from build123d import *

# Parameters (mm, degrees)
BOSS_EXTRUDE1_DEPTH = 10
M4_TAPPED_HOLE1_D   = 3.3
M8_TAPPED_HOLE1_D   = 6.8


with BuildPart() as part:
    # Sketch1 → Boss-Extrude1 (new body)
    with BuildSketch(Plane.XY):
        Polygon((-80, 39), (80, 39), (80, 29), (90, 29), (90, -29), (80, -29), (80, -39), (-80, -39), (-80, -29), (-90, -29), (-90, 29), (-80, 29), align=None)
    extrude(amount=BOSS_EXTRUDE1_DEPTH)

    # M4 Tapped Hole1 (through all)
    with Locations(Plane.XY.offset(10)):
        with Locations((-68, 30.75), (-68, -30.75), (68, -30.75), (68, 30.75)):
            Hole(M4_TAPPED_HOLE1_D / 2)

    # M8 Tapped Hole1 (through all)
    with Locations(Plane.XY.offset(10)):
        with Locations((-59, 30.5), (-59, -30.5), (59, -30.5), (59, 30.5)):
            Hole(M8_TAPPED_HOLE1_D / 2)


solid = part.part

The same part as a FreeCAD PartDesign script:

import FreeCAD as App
import Part
import Sketcher

V = App.Vector


def add_polygon(sketch, points):
    """Adds a closed chain of lines whose ends are joined by coincident constraints."""
    first, n = sketch.GeometryCount, len(points)
    for a, b in zip(points, points[1:] + points[:1]):
        sketch.addGeometry(Part.LineSegment(App.Vector(*a, 0), App.Vector(*b, 0)), False)
    for i in range(n):
        sketch.addConstraint(Sketcher.Constraint("Coincident", first + i, 2, first + (i + 1) % n, 1))

doc = App.newDocument("Part")
body = doc.addObject("PartDesign::Body", "Body")

# Sketch on XY plane
sketch1 = body.newObject("Sketcher::SketchObject", "Sketch")
sketch1.AttachmentSupport = (doc.getObject("XY_Plane"), [""])
sketch1.MapMode = "FlatFace"
add_polygon(sketch1, [(80, 39), (-80, 39), (-80, 29), (-90, 29), (-90, -29), (-80, -29), (-80, -39), (80, -39), (80, -29), (90, -29), (90, 29), (80, 29)])  # lines 0-11
sketch1.addConstraint([
    Sketcher.Constraint("Horizontal", 0),
    Sketcher.Constraint("Vertical", 1),
    Sketcher.Constraint("Horizontal", 2),
    Sketcher.Constraint("Vertical", 3),
    Sketcher.Constraint("Horizontal", 4),
    Sketcher.Constraint("Vertical", 5),
    Sketcher.Constraint("Horizontal", 6),
    Sketcher.Constraint("Vertical", 7),
    Sketcher.Constraint("Horizontal", 8),
    Sketcher.Constraint("Vertical", 9),
    Sketcher.Constraint("Horizontal", 10),
    Sketcher.Constraint("Vertical", 11),
    Sketcher.Constraint("Symmetric", 0, 2, 6, 2, -1, 1),
    Sketcher.Constraint("Symmetric", 2, 2, 8, 2, -1, 1),
    Sketcher.Constraint("Symmetric", 4, 2, 10, 2, -1, 1),
    Sketcher.Constraint("Symmetric", 4, 2, 7, 2, -2),
    Sketcher.Constraint("Equal", 10, 1),
    Sketcher.Constraint("DistanceX", 0, 2, 0, 1, 160.0),
    Sketcher.Constraint("DistanceX", 2, 2, 2, 1, 10.0),
    Sketcher.Constraint("DistanceY", 3, 2, 3, 1, 58.0),
])
pad1 = body.newObject("PartDesign::Pad", "Pad")
pad1.Profile = sketch1
pad1.Length = 10

# Sketch on XY plane
sketch2 = body.newObject("Sketcher::SketchObject", "Sketch001")
sketch2.AttachmentSupport = (doc.getObject("XY_Plane"), [""])
sketch2.MapMode = "FlatFace"
sketch2.AttachmentOffset = App.Placement(V(0, 0, 10), App.Rotation())
sketch2.addGeometry([
    Part.Circle(V(-68, 30.8, 0), V(0, 0, 1), 1.6),
    Part.Circle(V(-68, -30.8, 0), V(0, 0, 1), 1.6),
    Part.Circle(V(68, -30.8, 0), V(0, 0, 1), 1.6),
    Part.Circle(V(68, 30.8, 0), V(0, 0, 1), 1.6),
], False)
sketch2.addConstraint([
    Sketcher.Constraint("Equal", 0, 1),
    Sketcher.Constraint("Equal", 1, 2),
    Sketcher.Constraint("Equal", 2, 3),
    Sketcher.Constraint("Symmetric", 0, 3, 2, 3, -1, 1),
    Sketcher.Constraint("Symmetric", 1, 3, 3, 3, -1, 1),
    Sketcher.Constraint("Symmetric", 1, 3, 2, 3, -2),
    Sketcher.Constraint("Diameter", 0, 3.3),
    Sketcher.Constraint("DistanceX", 0, 3, -1, 1, 68.0),
    Sketcher.Constraint("DistanceY", 1, 3, 0, 3, 61.5),
])
doc.recompute()
hole = body.newObject("PartDesign::Hole", "Hole")
hole.Profile = sketch2
hole.ThreadType = "None"
hole.Diameter = 3.3
hole.DepthType = "ThroughAll"

# Sketch on XY plane
sketch3 = body.newObject("Sketcher::SketchObject", "Sketch002")
sketch3.AttachmentSupport = (doc.getObject("XY_Plane"), [""])
sketch3.MapMode = "FlatFace"
sketch3.AttachmentOffset = App.Placement(V(0, 0, 10), App.Rotation())
sketch3.addGeometry([
    Part.Circle(V(-59, 30.5, 0), V(0, 0, 1), 3.4),
    Part.Circle(V(-59, -30.5, 0), V(0, 0, 1), 3.4),
    Part.Circle(V(59, -30.5, 0), V(0, 0, 1), 3.4),
    Part.Circle(V(59, 30.5, 0), V(0, 0, 1), 3.4),
], False)
sketch3.addConstraint([
    Sketcher.Constraint("Equal", 0, 1),
    Sketcher.Constraint("Equal", 1, 2),
    Sketcher.Constraint("Equal", 2, 3),
    Sketcher.Constraint("Symmetric", 0, 3, 2, 3, -1, 1),
    Sketcher.Constraint("Symmetric", 1, 3, 3, 3, -1, 1),
    Sketcher.Constraint("Symmetric", 1, 3, 2, 3, -2),
    Sketcher.Constraint("Diameter", 0, 6.8),
    Sketcher.Constraint("DistanceX", 0, 3, -1, 1, 59.0),
    Sketcher.Constraint("DistanceY", 1, 3, 0, 3, 61.0),
])
doc.recompute()
hole2 = body.newObject("PartDesign::Hole", "Hole001")
hole2.Profile = sketch3
hole2.ThreadType = "None"
hole2.Diameter = 6.8
hole2.DepthType = "ThroughAll"

doc.recompute()
